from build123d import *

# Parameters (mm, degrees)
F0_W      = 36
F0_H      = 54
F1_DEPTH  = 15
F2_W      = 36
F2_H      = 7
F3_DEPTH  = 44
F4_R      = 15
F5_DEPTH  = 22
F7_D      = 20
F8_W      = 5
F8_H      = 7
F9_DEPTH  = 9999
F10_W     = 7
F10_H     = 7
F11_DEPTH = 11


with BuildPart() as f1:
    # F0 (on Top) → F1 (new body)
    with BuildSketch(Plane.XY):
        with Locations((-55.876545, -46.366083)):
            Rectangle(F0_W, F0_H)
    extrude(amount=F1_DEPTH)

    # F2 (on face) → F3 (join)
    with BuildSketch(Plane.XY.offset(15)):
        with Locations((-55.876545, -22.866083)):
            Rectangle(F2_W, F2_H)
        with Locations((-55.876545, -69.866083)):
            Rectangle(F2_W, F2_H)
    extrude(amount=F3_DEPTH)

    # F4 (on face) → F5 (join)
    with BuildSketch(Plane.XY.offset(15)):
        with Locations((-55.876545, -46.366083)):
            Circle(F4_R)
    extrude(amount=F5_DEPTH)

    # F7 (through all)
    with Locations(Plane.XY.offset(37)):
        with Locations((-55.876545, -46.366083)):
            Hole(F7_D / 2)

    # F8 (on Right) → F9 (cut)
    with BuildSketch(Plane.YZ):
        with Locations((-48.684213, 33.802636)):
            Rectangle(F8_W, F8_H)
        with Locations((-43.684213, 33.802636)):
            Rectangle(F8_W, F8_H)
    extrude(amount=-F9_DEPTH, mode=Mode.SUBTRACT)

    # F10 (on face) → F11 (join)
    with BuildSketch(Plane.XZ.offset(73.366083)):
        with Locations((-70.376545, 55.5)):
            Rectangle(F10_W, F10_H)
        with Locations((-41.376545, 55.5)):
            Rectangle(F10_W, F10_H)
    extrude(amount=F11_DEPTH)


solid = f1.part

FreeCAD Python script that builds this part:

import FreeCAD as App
import Part
import Sketcher
from FreeCAD import Vector

doc = App.newDocument("Part")
body = doc.addObject("PartDesign::Body", "Body")

# Sketch on XY plane
sketch1 = body.newObject("Sketcher::SketchObject", "Sketch")
sketch1.AttachmentSupport = (doc.getObject("XY_Plane"), [""])
sketch1.MapMode = "FlatFace"
sketch1.addGeometry(Part.LineSegment(Vector(-73.876545, -19.366083, 0), Vector(-73.876545, -73.366083, 0)), False)
sketch1.addGeometry(Part.LineSegment(Vector(-73.876545, -73.366083, 0), Vector(-37.876545, -73.366083, 0)), False)
sketch1.addGeometry(Part.LineSegment(Vector(-37.876545, -73.366083, 0), Vector(-37.876545, -19.366083, 0)), False)
sketch1.addGeometry(Part.LineSegment(Vector(-37.876545, -19.366083, 0), Vector(-73.876545, -19.366083, 0)), False)
sketch1.addConstraint(Sketcher.Constraint("Coincident", 0, 2, 1, 1))
sketch1.addConstraint(Sketcher.Constraint("Coincident", 1, 2, 2, 1))
sketch1.addConstraint(Sketcher.Constraint("Coincident", 2, 2, 3, 1))
sketch1.addConstraint(Sketcher.Constraint("Coincident", 3, 2, 0, 1))
sketch1.addConstraint(Sketcher.Constraint("Vertical", 0))
sketch1.addConstraint(Sketcher.Constraint("Horizontal", 1))
sketch1.addConstraint(Sketcher.Constraint("Vertical", 2))
sketch1.addConstraint(Sketcher.Constraint("Horizontal", 3))
sketch1.addConstraint(Sketcher.Constraint("DistanceX", 1, 1, 1, 2, 36.0))
sketch1.addConstraint(Sketcher.Constraint("DistanceY", 0, 2, 0, 1, 54.0))
sketch1.addConstraint(Sketcher.Constraint("DistanceX", 0, 2, -1, 1, 73.876545))
sketch1.addConstraint(Sketcher.Constraint("DistanceY", 0, 2, -1, 1, 73.366083))
pad1 = body.newObject("PartDesign::Pad", "Pad")
pad1.Profile = sketch1
pad1.Length = 15

# Sketch on XY plane
sketch2 = body.newObject("Sketcher::SketchObject", "Sketch001")
sketch2.AttachmentSupport = (doc.getObject("XY_Plane"), [""])
sketch2.MapMode = "FlatFace"
sketch2.AttachmentOffset = App.Placement(Vector(0, 0, 15), App.Rotation())
sketch2.addGeometry(Part.LineSegment(Vector(-73.876545, -19.366083, 0), Vector(-73.876545, -26.366083, 0)), False)
sketch2.addGeometry(Part.LineSegment(Vector(-73.876545, -26.366083, 0), Vector(-37.876545, -26.366083, 0)), False)
sketch2.addGeometry(Part.LineSegment(Vector(-37.876545, -26.366083, 0), Vector(-37.876545, -19.366083, 0)), False)
sketch2.addGeometry(Part.LineSegment(Vector(-37.876545, -19.366083, 0), Vector(-73.876545, -19.366083, 0)), False)
sketch2.addGeometry(Part.LineSegment(Vector(-73.876545, -66.366083, 0), Vector(-73.876545, -73.366083, 0)), False)
sketch2.addGeometry(Part.LineSegment(Vector(-73.876545, -73.366083, 0), Vector(-37.876545, -73.366083, 0)), False)
sketch2.addGeometry(Part.LineSegment(Vector(-37.876545, -73.366083, 0), Vector(-37.876545, -66.366083, 0)), False)
sketch2.addGeometry(Part.LineSegment(Vector(-37.876545, -66.366083, 0), Vector(-73.876545, -66.366083, 0)), False)
sketch2.addConstraint(Sketcher.Constraint("Coincident", 0, 2, 1, 1))
sketch2.addConstraint(Sketcher.Constraint("Coincident", 1, 2, 2, 1))
sketch2.addConstraint(Sketcher.Constraint("Coincident", 2, 2, 3, 1))
sketch2.addConstraint(Sketcher.Constraint("Coincident", 3, 2, 0, 1))
sketch2.addConstraint(Sketcher.Constraint("Coincident", 4, 2, 5, 1))
sketch2.addConstraint(Sketcher.Constraint("Coincident", 5, 2, 6, 1))
sketch2.addConstraint(Sketcher.Constraint("Coincident", 6, 2, 7, 1))
sketch2.addConstraint(Sketcher.Constraint("Coincident", 7, 2, 4, 1))
sketch2.addConstraint(Sketcher.Constraint("Vertical", 0))
sketch2.addConstraint(Sketcher.Constraint("Horizontal", 1))
sketch2.addConstraint(Sketcher.Constraint("Vertical", 2))
sketch2.addConstraint(Sketcher.Constraint("Horizontal", 3))
sketch2.addConstraint(Sketcher.Constraint("Vertical", 4))
sketch2.addConstraint(Sketcher.Constraint("Horizontal", 5))
sketch2.addConstraint(Sketcher.Constraint("Vertical", 6))
sketch2.addConstraint(Sketcher.Constraint("Horizontal", 7))
sketch2.addConstraint(Sketcher.Constraint("Vertical", 3, 2, 4, 2))
sketch2.addConstraint(Sketcher.Constraint("Vertical", 2, 2, 5, 2))
sketch2.addConstraint(Sketcher.Constraint("Equal", 2, 4))
sketch2.addConstraint(Sketcher.Constraint("DistanceX", 1, 1, 1, 2, 36.0))
sketch2.addConstraint(Sketcher.Constraint("DistanceY", 0, 2, 0, 1, 7.0))
sketch2.addConstraint(Sketcher.Constraint("DistanceY", 4, 2, 0, 2, 47.0))
sketch2.addConstraint(Sketcher.Constraint("DistanceX", 0, 2, -1, 1, 73.876545))
sketch2.addConstraint(Sketcher.Constraint("DistanceY", 0, 2, -1, 1, 26.366083))
pad2 = body.newObject("PartDesign::Pad", "Pad001")
pad2.Profile = sketch2
pad2.Length = 44

# Sketch on XY plane
sketch3 = body.newObject("Sketcher::SketchObject", "Sketch002")
sketch3.AttachmentSupport = (doc.getObject("XY_Plane"), [""])
sketch3.MapMode = "FlatFace"
sketch3.AttachmentOffset = App.Placement(Vector(0, 0, 15), App.Rotation())
sketch3.addGeometry(Part.Circle(Vector(-55.876545, -46.366083, 0), Vector(0, 0, 1), 15), False)
sketch3.addConstraint(Sketcher.Constraint("Diameter", 0, 30.0))
sketch3.addConstraint(Sketcher.Constraint("DistanceX", 0, 3, -1, 1, 55.876545))
sketch3.addConstraint(Sketcher.Constraint("DistanceY", 0, 3, -1, 1, 46.366083))
pad3 = body.newObject("PartDesign::Pad", "Pad002")
pad3.Profile = sketch3
pad3.Length = 22

# Sketch on XY plane
sketch4 = body.newObject("Sketcher::SketchObject", "Sketch003")
sketch4.AttachmentSupport = (doc.getObject("XY_Plane"), [""])
sketch4.MapMode = "FlatFace"
sketch4.AttachmentOffset = App.Placement(Vector(0, 0, 37), App.Rotation())
sketch4.addGeometry(Part.Circle(Vector(-55.876545, -46.366083, 0), Vector(0, 0, 1), 10), False)
sketch4.addConstraint(Sketcher.Constraint("Diameter", 0, 20.0))
sketch4.addConstraint(Sketcher.Constraint("DistanceX", 0, 3, -1, 1, 55.876545))
sketch4.addConstraint(Sketcher.Constraint("DistanceY", 0, 3, -1, 1, 46.366083))
doc.recompute()
hole = body.newObject("PartDesign::Hole", "Hole")
hole.Profile = sketch4
hole.ThreadType = "None"
hole.Diameter = 20
hole.DepthType = "ThroughAll"

# Sketch on YZ plane
sketch5 = body.newObject("Sketcher::SketchObject", "Sketch004")
sketch5.AttachmentSupport = (doc.getObject("YZ_Plane"), [""])
sketch5.MapMode = "FlatFace"
sketch5.addGeometry(Part.LineSegment(Vector(-51.184213, 37.302636, 0), Vector(-51.184213, 30.302636, 0)), False)
sketch5.addGeometry(Part.LineSegment(Vector(-51.184213, 30.302636, 0), Vector(-41.184213, 30.302636, 0)), False)
sketch5.addGeometry(Part.LineSegment(Vector(-41.184213, 30.302636, 0), Vector(-41.184213, 37.302636, 0)), False)
sketch5.addGeometry(Part.LineSegment(Vector(-41.184213, 37.302636, 0), Vector(-51.184213, 37.302636, 0)), False)
sketch5.addConstraint(Sketcher.Constraint("Coincident", 0, 2, 1, 1))
sketch5.addConstraint(Sketcher.Constraint("Coincident", 1, 2, 2, 1))
sketch5.addConstraint(Sketcher.Constraint("Coincident", 2, 2, 3, 1))
sketch5.addConstraint(Sketcher.Constraint("Coincident", 3, 2, 0, 1))
sketch5.addConstraint(Sketcher.Constraint("Vertical", 0))
sketch5.addConstraint(Sketcher.Constraint("Horizontal", 1))
sketch5.addConstraint(Sketcher.Constraint("Vertical", 2))
sketch5.addConstraint(Sketcher.Constraint("Horizontal", 3))
sketch5.addConstraint(Sketcher.Constraint("DistanceX", 1, 1, 1, 2, 10.0))
sketch5.addConstraint(Sketcher.Constraint("DistanceY", 0, 2, 0, 1, 7.0))
sketch5.addConstraint(Sketcher.Constraint("DistanceX", 0, 2, -1, 1, 51.184213))
sketch5.addConstraint(Sketcher.Constraint("DistanceY", -1, 1, 0, 2, 30.302636))
pocket1 = body.newObject("PartDesign::Pocket", "Pocket")
pocket1.Profile = sketch5
pocket1.Length = 9999

# Sketch on XZ plane
sketch6 = body.newObject("Sketcher::SketchObject", "Sketch005")
sketch6.AttachmentSupport = (doc.getObject("XZ_Plane"), [""])
sketch6.MapMode = "FlatFace"
sketch6.AttachmentOffset = App.Placement(Vector(0, 0, 73.366083), App.Rotation())
sketch6.addGeometry(Part.LineSegment(Vector(-73.876545, 59, 0), Vector(-73.876545, 52, 0)), False)
sketch6.addGeometry(Part.LineSegment(Vector(-73.876545, 52, 0), Vector(-66.876545, 52, 0)), False)
sketch6.addGeometry(Part.LineSegment(Vector(-66.876545, 52, 0), Vector(-66.876545, 59, 0)), False)
sketch6.addGeometry(Part.LineSegment(Vector(-66.876545, 59, 0), Vector(-73.876545, 59, 0)), False)
sketch6.addGeometry(Part.LineSegment(Vector(-44.876545, 59, 0), Vector(-44.876545, 52, 0)), False)
sketch6.addGeometry(Part.LineSegment(Vector(-44.876545, 52, 0), Vector(-37.876545, 52, 0)), False)
sketch6.addGeometry(Part.LineSegment(Vector(-37.876545, 52, 0), Vector(-37.876545, 59, 0)), False)
sketch6.addGeometry(Part.LineSegment(Vector(-37.876545, 59, 0), Vector(-44.876545, 59, 0)), False)
sketch6.addConstraint(Sketcher.Constraint("Coincident", 0, 2, 1, 1))
sketch6.addConstraint(Sketcher.Constraint("Coincident", 1, 2, 2, 1))
sketch6.addConstraint(Sketcher.Constraint("Coincident", 2, 2, 3, 1))
sketch6.addConstraint(Sketcher.Constraint("Coincident", 3, 2, 0, 1))
sketch6.addConstraint(Sketcher.Constraint("Coincident", 4, 2, 5, 1))
sketch6.addConstraint(Sketcher.Constraint("Coincident", 5, 2, 6, 1))
sketch6.addConstraint(Sketcher.Constraint("Coincident", 6, 2, 7, 1))
sketch6.addConstraint(Sketcher.Constraint("Coincident", 7, 2, 4, 1))
sketch6.addConstraint(Sketcher.Constraint("Vertical", 0))
sketch6.addConstraint(Sketcher.Constraint("Horizontal", 1))
sketch6.addConstraint(Sketcher.Constraint("Vertical", 2))
sketch6.addConstraint(Sketcher.Constraint("Horizontal", 3))
sketch6.addConstraint(Sketcher.Constraint("Vertical", 4))
sketch6.addConstraint(Sketcher.Constraint("Horizontal", 5))
sketch6.addConstraint(Sketcher.Constraint("Vertical", 6))
sketch6.addConstraint(Sketcher.Constraint("Horizontal", 7))
sketch6.addConstraint(Sketcher.Constraint("Horizontal", 1, 2, 4, 2))
sketch6.addConstraint(Sketcher.Constraint("Horizontal", 3, 2, 6, 2))
sketch6.addConstraint(Sketcher.Constraint("Equal", 3, 5))
sketch6.addConstraint(Sketcher.Constraint("Equal", 7, 0))
sketch6.addConstraint(Sketcher.Constraint("DistanceX", 1, 1, 1, 2, 7.0))
sketch6.addConstraint(Sketcher.Constraint("DistanceY", -1, 1, 0, 2, 52.0))
sketch6.addConstraint(Sketcher.Constraint("DistanceX", 1, 2, 4, 2, 22.0))
sketch6.addConstraint(Sketcher.Constraint("DistanceX", 0, 2, -1, 1, 73.876545))
pad4 = body.newObject("PartDesign::Pad", "Pad003")
pad4.Profile = sketch6
pad4.Length = 11

doc.recompute()
